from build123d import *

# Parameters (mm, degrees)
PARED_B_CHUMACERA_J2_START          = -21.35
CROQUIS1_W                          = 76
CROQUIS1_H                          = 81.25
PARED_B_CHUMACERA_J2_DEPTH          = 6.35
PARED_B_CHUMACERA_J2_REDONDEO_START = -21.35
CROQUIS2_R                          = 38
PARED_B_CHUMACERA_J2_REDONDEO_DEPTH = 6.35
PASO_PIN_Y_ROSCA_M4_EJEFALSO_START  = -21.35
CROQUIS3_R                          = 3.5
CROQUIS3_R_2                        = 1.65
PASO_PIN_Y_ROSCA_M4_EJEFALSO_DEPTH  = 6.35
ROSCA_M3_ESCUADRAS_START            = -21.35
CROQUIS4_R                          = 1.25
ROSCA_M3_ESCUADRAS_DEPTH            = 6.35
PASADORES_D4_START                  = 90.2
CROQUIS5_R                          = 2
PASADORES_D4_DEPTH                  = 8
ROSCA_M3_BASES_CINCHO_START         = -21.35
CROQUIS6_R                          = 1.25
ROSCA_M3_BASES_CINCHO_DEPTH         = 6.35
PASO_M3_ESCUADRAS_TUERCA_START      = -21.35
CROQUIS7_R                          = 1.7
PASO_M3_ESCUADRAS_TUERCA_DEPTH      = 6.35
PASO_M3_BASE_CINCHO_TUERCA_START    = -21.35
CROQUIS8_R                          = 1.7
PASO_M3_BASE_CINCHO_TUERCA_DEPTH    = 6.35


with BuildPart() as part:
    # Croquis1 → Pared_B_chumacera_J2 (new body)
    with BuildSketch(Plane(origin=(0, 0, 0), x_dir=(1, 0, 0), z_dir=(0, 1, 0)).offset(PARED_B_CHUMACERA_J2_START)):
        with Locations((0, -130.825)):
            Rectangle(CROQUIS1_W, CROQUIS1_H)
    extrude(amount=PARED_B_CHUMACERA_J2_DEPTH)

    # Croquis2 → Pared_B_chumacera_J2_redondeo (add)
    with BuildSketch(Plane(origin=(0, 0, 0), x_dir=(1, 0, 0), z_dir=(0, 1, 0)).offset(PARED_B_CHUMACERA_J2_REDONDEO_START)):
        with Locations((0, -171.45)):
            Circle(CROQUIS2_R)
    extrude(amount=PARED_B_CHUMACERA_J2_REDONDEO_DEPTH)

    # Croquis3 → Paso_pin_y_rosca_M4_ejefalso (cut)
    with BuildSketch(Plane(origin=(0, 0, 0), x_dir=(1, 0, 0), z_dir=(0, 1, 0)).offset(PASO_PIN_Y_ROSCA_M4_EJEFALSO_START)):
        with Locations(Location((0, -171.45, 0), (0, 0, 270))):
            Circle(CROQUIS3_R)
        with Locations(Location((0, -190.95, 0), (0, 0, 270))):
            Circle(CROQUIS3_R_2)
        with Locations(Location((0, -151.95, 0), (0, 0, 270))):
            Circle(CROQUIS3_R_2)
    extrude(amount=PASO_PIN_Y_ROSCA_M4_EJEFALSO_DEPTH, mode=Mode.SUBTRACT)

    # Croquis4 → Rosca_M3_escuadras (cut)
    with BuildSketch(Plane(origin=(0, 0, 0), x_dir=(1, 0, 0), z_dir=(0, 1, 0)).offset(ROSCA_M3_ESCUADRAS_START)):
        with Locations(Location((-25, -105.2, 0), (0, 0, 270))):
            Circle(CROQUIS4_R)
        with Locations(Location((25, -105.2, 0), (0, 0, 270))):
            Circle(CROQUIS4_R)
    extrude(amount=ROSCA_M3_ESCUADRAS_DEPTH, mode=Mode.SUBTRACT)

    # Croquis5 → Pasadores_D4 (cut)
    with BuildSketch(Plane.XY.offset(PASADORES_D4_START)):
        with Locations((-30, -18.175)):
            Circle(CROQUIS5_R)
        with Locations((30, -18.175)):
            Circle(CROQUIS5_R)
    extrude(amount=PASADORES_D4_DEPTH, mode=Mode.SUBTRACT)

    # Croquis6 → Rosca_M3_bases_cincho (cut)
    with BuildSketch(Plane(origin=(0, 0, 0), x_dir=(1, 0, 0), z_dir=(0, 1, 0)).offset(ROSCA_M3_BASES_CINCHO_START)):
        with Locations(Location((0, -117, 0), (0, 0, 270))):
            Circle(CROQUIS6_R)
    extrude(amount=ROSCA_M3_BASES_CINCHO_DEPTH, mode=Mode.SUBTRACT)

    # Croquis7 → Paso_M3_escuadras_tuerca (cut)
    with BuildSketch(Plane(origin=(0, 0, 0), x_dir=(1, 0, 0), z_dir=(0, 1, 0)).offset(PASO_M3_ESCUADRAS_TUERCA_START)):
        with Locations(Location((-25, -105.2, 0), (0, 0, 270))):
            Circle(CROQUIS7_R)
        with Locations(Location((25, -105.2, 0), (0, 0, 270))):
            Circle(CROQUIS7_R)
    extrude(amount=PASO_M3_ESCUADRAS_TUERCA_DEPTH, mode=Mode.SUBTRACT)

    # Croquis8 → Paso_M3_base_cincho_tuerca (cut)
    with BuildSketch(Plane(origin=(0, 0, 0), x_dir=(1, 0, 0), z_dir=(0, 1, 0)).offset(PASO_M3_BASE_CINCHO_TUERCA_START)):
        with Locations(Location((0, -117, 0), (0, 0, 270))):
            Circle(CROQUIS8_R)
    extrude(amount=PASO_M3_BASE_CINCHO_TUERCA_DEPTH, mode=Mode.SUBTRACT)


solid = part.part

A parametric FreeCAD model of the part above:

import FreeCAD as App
import Part
import Sketcher

V = App.Vector


def add_polygon(sketch, points):
    """Adds a closed chain of lines whose ends are joined by coincident constraints."""
    first, n = sketch.GeometryCount, len(points)
    for a, b in zip(points, points[1:] + points[:1]):
        sketch.addGeometry(Part.LineSegment(App.Vector(*a, 0), App.Vector(*b, 0)), False)
    for i in range(n):
        sketch.addConstraint(Sketcher.Constraint("Coincident", first + i, 2, first + (i + 1) % n, 1))

doc = App.newDocument("Part")
body = doc.addObject("PartDesign::Body", "Body")

sketch1 = body.newObject("Sketcher::SketchObject", "Sketch")
sketch1.AttachmentSupport = (doc.getObject("XZ_Plane"), [""])
sketch1.MapMode = "FlatFace"
sketch1.AttachmentOffset = App.Placement(V(0, 0, 21.35), App.Rotation())
add_polygon(sketch1, [(-38, 90), (-38, 171), (38, 171), (38, 90)])
sketch1.addConstraint([
    Sketcher.Constraint("Vertical", 0),
    Sketcher.Constraint("Horizontal", 1),
    Sketcher.Constraint("Vertical", 2),
    Sketcher.Constraint("Horizontal", 3),
    Sketcher.Constraint("DistanceX", 1, 1, 1, 2, 76.0),
    Sketcher.Constraint("DistanceX", 0, 2, -1, 1, 38.0),
    Sketcher.Constraint("DistanceY", 0, 1, 0, 2, 81.25),
    Sketcher.Constraint("DistanceY", -1, 1, 2, 2, 90.2),
])
pad1 = body.newObject("PartDesign::Pad", "Pad")
pad1.Profile = sketch1
pad1.Length = 6.35
pad1.Reversed = True

sketch2 = body.newObject("Sketcher::SketchObject", "Sketch001")
sketch2.AttachmentSupport = (doc.getObject("XZ_Plane"), [""])
sketch2.MapMode = "FlatFace"
sketch2.AttachmentOffset = App.Placement(V(0, 0, 21.35), App.Rotation())
sketch2.addGeometry(Part.Circle(V(0, 171, 0), V(0, 0, 1), 38), False)
sketch2.addConstraint([
    Sketcher.Constraint("PointOnObject", 0, 3, -2),
    Sketcher.Constraint("Diameter", 0, 76.0),
    Sketcher.Constraint("DistanceY", -1, 1, 0, 3, 171.45),
])
pad2 = body.newObject("PartDesign::Pad", "Pad001")
pad2.Profile = sketch2
pad2.Length = 6.35
pad2.Reversed = True

sketch3 = body.newObject("Sketcher::SketchObject", "Sketch002")
sketch3.AttachmentSupport = (doc.getObject("XZ_Plane"), [""])
sketch3.MapMode = "FlatFace"
sketch3.AttachmentOffset = App.Placement(V(0, 0, 21.35), App.Rotation())
sketch3.addGeometry([
    Part.Circle(V(0, 171.4, 0), V(0, 0, 1), 3.5),
    Part.Circle(V(0, 190.9, 0), V(0, 0, 1), 1.6),
    Part.Circle(V(0, 151.9, 0), V(0, 0, 1), 1.6),
], False)
sketch3.addConstraint([
    Sketcher.Constraint("Equal", 1, 2),
    Sketcher.Constraint("PointOnObject", 0, 3, -2),
    Sketcher.Constraint("PointOnObject", 1, 3, -2),
    Sketcher.Constraint("PointOnObject", 2, 3, -2),
    Sketcher.Constraint("Diameter", 0, 7.0),
    Sketcher.Constraint("Diameter", 1, 3.3),
    Sketcher.Constraint("DistanceY", 2, 3, 1, 3, 39.0),
    Sketcher.Constraint("DistanceY", 0, 3, 1, 3, 19.5),
    Sketcher.Constraint("DistanceY", -1, 1, 0, 3, 171.45),
])
pocket1 = body.newObject("PartDesign::Pocket", "Pocket")
pocket1.Profile = sketch3
pocket1.Length = 6.35

sketch4 = body.newObject("Sketcher::SketchObject", "Sketch003")
sketch4.AttachmentSupport = (doc.getObject("XZ_Plane"), [""])
sketch4.MapMode = "FlatFace"
sketch4.AttachmentOffset = App.Placement(V(0, 0, 21.35), App.Rotation())
sketch4.addGeometry([
    Part.Circle(V(-25, 105.2, 0), V(0, 0, 1), 1.2),
    Part.Circle(V(25, 105.2, 0), V(0, 0, 1), 1.2),
], False)
sketch4.addConstraint([
    Sketcher.Constraint("Equal", 0, 1),
    Sketcher.Constraint("Symmetric", 0, 3, 1, 3, -2),
    Sketcher.Constraint("Diameter", 0, 2.5),
    Sketcher.Constraint("DistanceX", 0, 3, -1, 1, 25.0),
    Sketcher.Constraint("DistanceY", -1, 1, 0, 3, 105.2),
])
pocket2 = body.newObject("PartDesign::Pocket", "Pocket001")
pocket2.Profile = sketch4
pocket2.Length = 6.35

sketch5 = body.newObject("Sketcher::SketchObject", "Sketch004")
sketch5.AttachmentSupport = (doc.getObject("XY_Plane"), [""])
sketch5.MapMode = "FlatFace"
sketch5.AttachmentOffset = App.Placement(V(0, 0, 90.2), App.Rotation())
sketch5.addGeometry([
    Part.Circle(V(-30, -18.2, 0), V(0, 0, 1), 2),
    Part.Circle(V(30, -18.2, 0), V(0, 0, 1), 2),
], False)
sketch5.addConstraint([
    Sketcher.Constraint("Equal", 0, 1),
    Sketcher.Constraint("Symmetric", 0, 3, 1, 3, -2),
    Sketcher.Constraint("Diameter", 0, 4.0),
    Sketcher.Constraint("DistanceX", 0, 3, -1, 1, 30.0),
    Sketcher.Constraint("DistanceY", 0, 3, -1, 1, 18.175),
])
pocket3 = body.newObject("PartDesign::Pocket", "Pocket002")
pocket3.Profile = sketch5
pocket3.Length = 8
pocket3.Reversed = True

sketch6 = body.newObject("Sketcher::SketchObject", "Sketch005")
sketch6.AttachmentSupport = (doc.getObject("XZ_Plane"), [""])
sketch6.MapMode = "FlatFace"
sketch6.AttachmentOffset = App.Placement(V(0, 0, 21.35), App.Rotation())
sketch6.addGeometry(Part.Circle(V(0, 117, 0), V(0, 0, 1), 1.2), False)
sketch6.addConstraint([
    Sketcher.Constraint("PointOnObject", 0, 3, -2),
    Sketcher.Constraint("Diameter", 0, 2.5),
    Sketcher.Constraint("DistanceY", -1, 1, 0, 3, 117.0),
])
pocket4 = body.newObject("PartDesign::Pocket", "Pocket003")
pocket4.Profile = sketch6
pocket4.Length = 6.35

sketch7 = body.newObject("Sketcher::SketchObject", "Sketch006")
sketch7.AttachmentSupport = (doc.getObject("XZ_Plane"), [""])
sketch7.MapMode = "FlatFace"
sketch7.AttachmentOffset = App.Placement(V(0, 0, 21.35), App.Rotation())
sketch7.addGeometry([
    Part.Circle(V(-25, 105.2, 0), V(0, 0, 1), 1.7),
    Part.Circle(V(25, 105.2, 0), V(0, 0, 1), 1.7),
], False)
sketch7.addConstraint([
    Sketcher.Constraint("Equal", 0, 1),
    Sketcher.Constraint("Symmetric", 0, 3, 1, 3, -2),
    Sketcher.Constraint("Diameter", 0, 3.4),
    Sketcher.Constraint("DistanceX", 0, 3, -1, 1, 25.0),
    Sketcher.Constraint("DistanceY", -1, 1, 0, 3, 105.2),
])
pocket5 = body.newObject("PartDesign::Pocket", "Pocket004")
pocket5.Profile = sketch7
pocket5.Length = 6.35

sketch8 = body.newObject("Sketcher::SketchObject", "Sketch007")
sketch8.AttachmentSupport = (doc.getObject("XZ_Plane"), [""])
sketch8.MapMode = "FlatFace"
sketch8.AttachmentOffset = App.Placement(V(0, 0, 21.35), App.Rotation())
sketch8.addGeometry(Part.Circle(V(0, 117, 0), V(0, 0, 1), 1.7), False)
sketch8.addConstraint([
    Sketcher.Constraint("PointOnObject", 0, 3, -2),
    Sketcher.Constraint("Diameter", 0, 3.4),
    Sketcher.Constraint("DistanceY", -1, 1, 0, 3, 117.0),
])
pocket6 = body.newObject("PartDesign::Pocket", "Pocket005")
pocket6.Profile = sketch8
pocket6.Length = 6.35

doc.recompute()
